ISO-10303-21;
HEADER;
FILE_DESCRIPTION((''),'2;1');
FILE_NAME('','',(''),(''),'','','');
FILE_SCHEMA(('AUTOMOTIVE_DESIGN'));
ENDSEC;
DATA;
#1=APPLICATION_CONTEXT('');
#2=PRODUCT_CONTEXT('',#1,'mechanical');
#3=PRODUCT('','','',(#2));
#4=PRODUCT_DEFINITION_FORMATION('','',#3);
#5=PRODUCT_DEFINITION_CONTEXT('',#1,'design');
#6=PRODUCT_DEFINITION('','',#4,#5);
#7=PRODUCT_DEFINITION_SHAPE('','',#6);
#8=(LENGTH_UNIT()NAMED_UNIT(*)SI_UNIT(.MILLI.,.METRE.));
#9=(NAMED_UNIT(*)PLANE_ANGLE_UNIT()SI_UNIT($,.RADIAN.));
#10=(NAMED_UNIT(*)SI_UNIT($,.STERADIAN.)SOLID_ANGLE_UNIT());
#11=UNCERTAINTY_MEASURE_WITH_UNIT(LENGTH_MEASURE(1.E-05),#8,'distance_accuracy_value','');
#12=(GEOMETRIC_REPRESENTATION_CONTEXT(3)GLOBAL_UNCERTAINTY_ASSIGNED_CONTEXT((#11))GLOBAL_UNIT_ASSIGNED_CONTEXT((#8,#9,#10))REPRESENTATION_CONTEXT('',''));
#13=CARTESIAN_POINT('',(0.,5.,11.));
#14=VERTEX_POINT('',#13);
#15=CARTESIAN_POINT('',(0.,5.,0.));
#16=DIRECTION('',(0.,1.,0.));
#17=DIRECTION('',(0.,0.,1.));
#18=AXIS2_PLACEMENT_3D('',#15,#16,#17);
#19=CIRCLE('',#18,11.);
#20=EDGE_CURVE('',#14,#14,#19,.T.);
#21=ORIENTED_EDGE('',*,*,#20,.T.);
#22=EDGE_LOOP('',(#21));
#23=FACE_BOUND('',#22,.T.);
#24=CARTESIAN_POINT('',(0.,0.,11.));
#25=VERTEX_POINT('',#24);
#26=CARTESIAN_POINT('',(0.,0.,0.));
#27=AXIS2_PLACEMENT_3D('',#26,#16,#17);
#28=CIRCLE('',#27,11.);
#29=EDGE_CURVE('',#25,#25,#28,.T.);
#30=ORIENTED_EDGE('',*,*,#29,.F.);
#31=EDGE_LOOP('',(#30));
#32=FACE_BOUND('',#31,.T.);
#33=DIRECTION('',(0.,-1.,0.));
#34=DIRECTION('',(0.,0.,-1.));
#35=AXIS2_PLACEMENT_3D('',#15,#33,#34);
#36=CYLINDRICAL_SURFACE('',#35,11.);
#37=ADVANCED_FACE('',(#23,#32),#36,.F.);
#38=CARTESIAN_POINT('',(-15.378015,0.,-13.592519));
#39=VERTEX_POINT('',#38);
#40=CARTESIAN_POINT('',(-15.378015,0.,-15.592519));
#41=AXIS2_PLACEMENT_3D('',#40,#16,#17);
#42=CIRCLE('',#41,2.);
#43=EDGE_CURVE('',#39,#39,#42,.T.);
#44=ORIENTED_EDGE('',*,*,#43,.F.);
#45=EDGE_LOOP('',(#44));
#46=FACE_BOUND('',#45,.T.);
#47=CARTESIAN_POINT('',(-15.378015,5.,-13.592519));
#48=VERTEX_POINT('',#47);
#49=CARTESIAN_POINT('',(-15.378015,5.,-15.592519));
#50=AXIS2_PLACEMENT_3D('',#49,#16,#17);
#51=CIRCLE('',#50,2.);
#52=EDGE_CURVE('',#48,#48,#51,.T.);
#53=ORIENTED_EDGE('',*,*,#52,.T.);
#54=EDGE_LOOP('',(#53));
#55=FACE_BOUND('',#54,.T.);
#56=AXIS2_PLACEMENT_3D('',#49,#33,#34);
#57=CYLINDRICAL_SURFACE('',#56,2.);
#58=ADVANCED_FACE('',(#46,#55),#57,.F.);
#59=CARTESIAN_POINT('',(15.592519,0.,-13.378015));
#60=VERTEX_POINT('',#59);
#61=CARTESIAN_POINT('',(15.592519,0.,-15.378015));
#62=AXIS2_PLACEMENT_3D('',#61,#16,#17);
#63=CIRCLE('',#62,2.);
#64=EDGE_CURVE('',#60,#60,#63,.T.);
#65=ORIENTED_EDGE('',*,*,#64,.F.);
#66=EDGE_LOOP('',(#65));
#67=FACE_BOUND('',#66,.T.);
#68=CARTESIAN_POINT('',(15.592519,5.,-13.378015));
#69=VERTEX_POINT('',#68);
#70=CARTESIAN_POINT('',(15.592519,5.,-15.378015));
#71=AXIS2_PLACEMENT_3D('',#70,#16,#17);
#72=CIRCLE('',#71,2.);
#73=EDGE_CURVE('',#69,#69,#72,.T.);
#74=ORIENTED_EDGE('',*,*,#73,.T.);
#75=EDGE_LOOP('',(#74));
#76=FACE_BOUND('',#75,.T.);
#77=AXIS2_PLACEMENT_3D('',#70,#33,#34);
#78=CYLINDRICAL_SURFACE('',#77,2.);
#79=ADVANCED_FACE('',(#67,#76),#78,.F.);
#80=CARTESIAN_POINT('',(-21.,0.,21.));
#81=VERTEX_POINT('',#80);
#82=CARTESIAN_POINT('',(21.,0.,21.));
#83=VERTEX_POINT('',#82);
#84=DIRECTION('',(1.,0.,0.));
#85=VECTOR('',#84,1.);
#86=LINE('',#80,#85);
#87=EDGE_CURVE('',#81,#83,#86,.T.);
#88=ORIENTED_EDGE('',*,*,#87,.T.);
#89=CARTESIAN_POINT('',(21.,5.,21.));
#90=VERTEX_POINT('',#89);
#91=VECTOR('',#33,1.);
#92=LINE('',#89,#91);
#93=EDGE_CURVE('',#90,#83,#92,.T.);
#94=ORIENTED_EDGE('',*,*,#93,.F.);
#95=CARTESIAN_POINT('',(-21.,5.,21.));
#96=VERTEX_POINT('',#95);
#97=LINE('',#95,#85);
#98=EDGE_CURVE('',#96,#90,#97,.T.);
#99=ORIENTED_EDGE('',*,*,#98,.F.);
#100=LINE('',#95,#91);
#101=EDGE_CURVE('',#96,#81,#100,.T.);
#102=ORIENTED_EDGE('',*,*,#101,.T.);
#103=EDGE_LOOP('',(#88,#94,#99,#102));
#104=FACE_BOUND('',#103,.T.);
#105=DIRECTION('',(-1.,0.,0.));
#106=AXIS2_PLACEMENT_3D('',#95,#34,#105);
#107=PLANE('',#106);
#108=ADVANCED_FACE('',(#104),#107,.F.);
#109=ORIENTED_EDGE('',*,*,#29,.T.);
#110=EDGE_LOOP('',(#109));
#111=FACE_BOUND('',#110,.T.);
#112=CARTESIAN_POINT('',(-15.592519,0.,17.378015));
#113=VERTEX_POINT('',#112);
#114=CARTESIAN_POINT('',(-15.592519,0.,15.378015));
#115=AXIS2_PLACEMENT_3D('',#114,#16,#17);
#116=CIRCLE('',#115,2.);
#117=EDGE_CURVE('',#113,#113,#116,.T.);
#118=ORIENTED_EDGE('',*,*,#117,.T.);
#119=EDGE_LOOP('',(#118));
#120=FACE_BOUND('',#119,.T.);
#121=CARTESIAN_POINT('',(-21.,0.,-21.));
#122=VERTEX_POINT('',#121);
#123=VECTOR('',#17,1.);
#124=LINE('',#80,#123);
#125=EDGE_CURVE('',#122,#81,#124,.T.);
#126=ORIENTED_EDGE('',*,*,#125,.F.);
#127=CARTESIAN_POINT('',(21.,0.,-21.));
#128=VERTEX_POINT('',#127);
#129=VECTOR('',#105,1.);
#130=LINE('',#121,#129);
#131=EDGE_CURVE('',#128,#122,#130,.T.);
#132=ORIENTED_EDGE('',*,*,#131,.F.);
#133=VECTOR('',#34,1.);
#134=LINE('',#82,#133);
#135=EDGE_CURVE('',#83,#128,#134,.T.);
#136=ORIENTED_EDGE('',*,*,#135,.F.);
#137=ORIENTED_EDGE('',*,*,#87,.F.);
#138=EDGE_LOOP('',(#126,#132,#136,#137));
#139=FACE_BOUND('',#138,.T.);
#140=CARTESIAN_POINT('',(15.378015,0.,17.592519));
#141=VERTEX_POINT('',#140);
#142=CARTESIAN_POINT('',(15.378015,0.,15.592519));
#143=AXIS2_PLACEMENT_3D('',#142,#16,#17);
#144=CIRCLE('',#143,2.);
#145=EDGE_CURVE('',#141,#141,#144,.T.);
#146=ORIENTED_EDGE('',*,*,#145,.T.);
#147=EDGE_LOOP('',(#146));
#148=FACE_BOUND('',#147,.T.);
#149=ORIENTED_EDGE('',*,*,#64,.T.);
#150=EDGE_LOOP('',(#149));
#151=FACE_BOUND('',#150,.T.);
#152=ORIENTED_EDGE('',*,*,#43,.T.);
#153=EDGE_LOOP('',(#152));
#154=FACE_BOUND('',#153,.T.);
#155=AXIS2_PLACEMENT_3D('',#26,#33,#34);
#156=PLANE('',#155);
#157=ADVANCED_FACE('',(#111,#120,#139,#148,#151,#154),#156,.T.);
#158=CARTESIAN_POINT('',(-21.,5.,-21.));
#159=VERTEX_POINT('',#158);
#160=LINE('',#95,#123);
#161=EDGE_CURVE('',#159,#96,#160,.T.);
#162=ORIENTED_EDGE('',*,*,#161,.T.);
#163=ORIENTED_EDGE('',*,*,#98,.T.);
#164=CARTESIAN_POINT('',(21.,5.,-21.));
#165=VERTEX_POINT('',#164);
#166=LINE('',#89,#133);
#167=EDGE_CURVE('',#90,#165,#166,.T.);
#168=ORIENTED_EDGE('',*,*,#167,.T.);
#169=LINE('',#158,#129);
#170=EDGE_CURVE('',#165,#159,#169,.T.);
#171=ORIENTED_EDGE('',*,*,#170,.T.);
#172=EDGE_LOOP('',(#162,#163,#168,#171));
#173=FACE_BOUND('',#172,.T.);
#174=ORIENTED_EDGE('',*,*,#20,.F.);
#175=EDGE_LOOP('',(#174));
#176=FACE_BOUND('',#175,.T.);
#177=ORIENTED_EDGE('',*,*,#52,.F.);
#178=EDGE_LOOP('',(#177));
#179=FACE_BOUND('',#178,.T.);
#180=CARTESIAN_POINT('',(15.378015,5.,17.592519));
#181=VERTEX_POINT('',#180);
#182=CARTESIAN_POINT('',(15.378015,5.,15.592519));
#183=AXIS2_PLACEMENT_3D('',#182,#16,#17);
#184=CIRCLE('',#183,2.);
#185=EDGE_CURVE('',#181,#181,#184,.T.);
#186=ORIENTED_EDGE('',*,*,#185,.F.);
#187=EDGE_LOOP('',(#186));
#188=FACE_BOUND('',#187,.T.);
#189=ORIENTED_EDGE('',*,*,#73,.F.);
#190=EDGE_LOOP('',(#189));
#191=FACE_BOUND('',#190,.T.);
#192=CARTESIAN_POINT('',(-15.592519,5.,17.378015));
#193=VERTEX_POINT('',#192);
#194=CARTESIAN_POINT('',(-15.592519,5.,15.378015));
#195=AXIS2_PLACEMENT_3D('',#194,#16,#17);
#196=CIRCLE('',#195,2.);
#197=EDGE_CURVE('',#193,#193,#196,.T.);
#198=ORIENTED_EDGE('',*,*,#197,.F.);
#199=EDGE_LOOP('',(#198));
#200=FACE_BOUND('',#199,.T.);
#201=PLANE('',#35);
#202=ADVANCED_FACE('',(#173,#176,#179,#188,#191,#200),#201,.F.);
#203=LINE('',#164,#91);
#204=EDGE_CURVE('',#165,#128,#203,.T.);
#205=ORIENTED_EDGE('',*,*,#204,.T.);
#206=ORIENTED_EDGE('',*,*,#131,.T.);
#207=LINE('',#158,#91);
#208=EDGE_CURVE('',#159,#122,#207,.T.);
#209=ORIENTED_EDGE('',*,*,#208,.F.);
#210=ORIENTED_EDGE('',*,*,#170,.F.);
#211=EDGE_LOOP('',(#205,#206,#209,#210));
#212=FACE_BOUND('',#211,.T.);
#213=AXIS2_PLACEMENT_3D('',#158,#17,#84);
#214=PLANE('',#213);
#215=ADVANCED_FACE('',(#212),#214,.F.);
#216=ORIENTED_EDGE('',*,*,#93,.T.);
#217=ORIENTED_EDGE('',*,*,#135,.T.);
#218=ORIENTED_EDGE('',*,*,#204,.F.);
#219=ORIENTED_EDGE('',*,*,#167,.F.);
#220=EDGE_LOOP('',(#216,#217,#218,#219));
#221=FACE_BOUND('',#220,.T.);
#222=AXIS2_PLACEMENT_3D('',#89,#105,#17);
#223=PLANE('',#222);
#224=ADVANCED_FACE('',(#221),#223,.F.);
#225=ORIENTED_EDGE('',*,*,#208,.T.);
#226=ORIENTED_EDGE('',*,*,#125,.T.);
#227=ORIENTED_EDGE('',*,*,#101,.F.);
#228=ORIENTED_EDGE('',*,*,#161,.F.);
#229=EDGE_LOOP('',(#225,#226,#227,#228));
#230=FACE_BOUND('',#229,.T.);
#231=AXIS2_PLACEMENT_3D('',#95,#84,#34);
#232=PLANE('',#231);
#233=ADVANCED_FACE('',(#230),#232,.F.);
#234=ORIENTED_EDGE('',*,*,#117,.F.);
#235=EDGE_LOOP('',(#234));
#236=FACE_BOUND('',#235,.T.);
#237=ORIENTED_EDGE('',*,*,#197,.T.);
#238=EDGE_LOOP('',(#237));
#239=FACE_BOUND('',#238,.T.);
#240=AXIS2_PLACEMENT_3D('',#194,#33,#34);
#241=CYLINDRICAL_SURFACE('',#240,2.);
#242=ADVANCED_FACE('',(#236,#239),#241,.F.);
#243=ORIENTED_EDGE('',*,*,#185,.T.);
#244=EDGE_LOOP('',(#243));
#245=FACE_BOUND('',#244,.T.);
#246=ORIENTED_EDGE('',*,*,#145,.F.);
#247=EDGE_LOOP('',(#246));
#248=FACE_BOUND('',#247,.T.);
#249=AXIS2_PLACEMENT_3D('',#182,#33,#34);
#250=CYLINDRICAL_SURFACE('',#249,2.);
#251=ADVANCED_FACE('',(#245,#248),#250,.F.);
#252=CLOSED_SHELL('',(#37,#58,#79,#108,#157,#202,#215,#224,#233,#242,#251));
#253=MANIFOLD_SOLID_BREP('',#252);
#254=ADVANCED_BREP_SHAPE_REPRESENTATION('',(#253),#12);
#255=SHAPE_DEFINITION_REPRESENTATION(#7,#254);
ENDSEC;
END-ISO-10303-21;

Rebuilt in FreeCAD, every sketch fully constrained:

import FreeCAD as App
import Part
import Sketcher
from FreeCAD import Vector


def add_polygon(sketch, points):
    """Adds a closed chain of lines whose ends are joined by coincident constraints."""
    first, n = sketch.GeometryCount, len(points)
    for a, b in zip(points, points[1:] + points[:1]):
        sketch.addGeometry(Part.LineSegment(App.Vector(*a, 0), App.Vector(*b, 0)), False)
    for i in range(n):
        sketch.addConstraint(Sketcher.Constraint("Coincident", first + i, 2, first + (i + 1) % n, 1))

doc = App.newDocument("Part")
params = doc.addObject("Spreadsheet::Sheet", "Params")
for row, (alias, value) in enumerate([
    ("sketch1_diameter", "4 mm"),
    ("sketch1_diameter2", "22 mm"),
    ("sketch1_width", "42 mm"),
    ("pad1_length", "5 mm"),
], start=1):
    params.set(f"A{row}", alias)
    params.set(f"B{row}", "=" + value)
    params.setAlias(f"B{row}", alias)

body = doc.addObject("PartDesign::Body", "Body")

# Sketch on XZ plane
sketch1 = doc.addObject("Sketcher::SketchObject", "Sketch")
body.addObject(sketch1)
sketch1.AttachmentSupport = (doc.XZ_Plane, [""])
sketch1.MapMode = "FlatFace"
add_polygon(sketch1, [(-21, -21), (-21, 21), (21, 21), (21, -21)])  # lines 0-3
sketch1.addGeometry(Part.Circle(Vector(-15.6, 15.4, 0), Vector(0, 0, 1), 2), False)  # 4
sketch1.addGeometry(Part.Circle(Vector(15.4, 15.6, 0), Vector(0, 0, 1), 2), False)  # 5
sketch1.addGeometry(Part.Circle(Vector(-15.4, -15.6, 0), Vector(0, 0, 1), 2), False)  # 6
sketch1.addGeometry(Part.Circle(Vector(0, 0, 0), Vector(0, 0, 1), 11), False)  # 7
sketch1.addGeometry(Part.Circle(Vector(15.6, -15.4, 0), Vector(0, 0, 1), 2), False)  # 8
sketch1.addConstraint(Sketcher.Constraint("Vertical", 0))
sketch1.addConstraint(Sketcher.Constraint("Horizontal", 1))
sketch1.addConstraint(Sketcher.Constraint("Vertical", 2))
sketch1.addConstraint(Sketcher.Constraint("Horizontal", 3))
sketch1.addConstraint(Sketcher.Constraint("Coincident", 7, 3, -1, 1))
sketch1.addConstraint(Sketcher.Constraint("Equal", 4, 5))
sketch1.addConstraint(Sketcher.Constraint("Equal", 5, 6))
sketch1.addConstraint(Sketcher.Constraint("Equal", 6, 8))
sketch1.addConstraint(Sketcher.Constraint("Symmetric", 5, 3, 6, 3, -1, 1))
sketch1.addConstraint(Sketcher.Constraint("Symmetric", 4, 3, 8, 3, -1, 1))
sketch1.addConstraint(Sketcher.Constraint("Symmetric", 0, 2, 2, 2, -1, 1))
sketch1.addConstraint(Sketcher.Constraint("Equal", 3, 0))
sketch1.addConstraint(Sketcher.Constraint("Diameter", 4, 4.0))
sketch1.addConstraint(Sketcher.Constraint("Diameter", 7, 22.0))
sketch1.addConstraint(Sketcher.Constraint("DistanceX", 1, 1, 1, 2, 42.0))
sketch1.addConstraint(Sketcher.Constraint("DistanceX", 4, 3, -1, 1, 15.592519))
sketch1.addConstraint(Sketcher.Constraint("DistanceY", -1, 1, 5, 3, 15.592519))
sketch1.addConstraint(Sketcher.Constraint("DistanceX", 6, 3, 5, 3, 30.75603))
sketch1.addConstraint(Sketcher.Constraint("DistanceY", 8, 3, 4, 3, 30.75603))
sketch1.setExpression("Constraints[16]", "Params.sketch1_diameter")
sketch1.setExpression("Constraints[17]", "Params.sketch1_diameter2")
sketch1.setExpression("Constraints[18]", "Params.sketch1_width")
pad1 = doc.addObject("PartDesign::Pad", "Pad")
body.addObject(pad1)
pad1.Profile = sketch1
pad1.setExpression("Length", "Params.pad1_length")
pad1.Reversed = True

doc.recompute()
